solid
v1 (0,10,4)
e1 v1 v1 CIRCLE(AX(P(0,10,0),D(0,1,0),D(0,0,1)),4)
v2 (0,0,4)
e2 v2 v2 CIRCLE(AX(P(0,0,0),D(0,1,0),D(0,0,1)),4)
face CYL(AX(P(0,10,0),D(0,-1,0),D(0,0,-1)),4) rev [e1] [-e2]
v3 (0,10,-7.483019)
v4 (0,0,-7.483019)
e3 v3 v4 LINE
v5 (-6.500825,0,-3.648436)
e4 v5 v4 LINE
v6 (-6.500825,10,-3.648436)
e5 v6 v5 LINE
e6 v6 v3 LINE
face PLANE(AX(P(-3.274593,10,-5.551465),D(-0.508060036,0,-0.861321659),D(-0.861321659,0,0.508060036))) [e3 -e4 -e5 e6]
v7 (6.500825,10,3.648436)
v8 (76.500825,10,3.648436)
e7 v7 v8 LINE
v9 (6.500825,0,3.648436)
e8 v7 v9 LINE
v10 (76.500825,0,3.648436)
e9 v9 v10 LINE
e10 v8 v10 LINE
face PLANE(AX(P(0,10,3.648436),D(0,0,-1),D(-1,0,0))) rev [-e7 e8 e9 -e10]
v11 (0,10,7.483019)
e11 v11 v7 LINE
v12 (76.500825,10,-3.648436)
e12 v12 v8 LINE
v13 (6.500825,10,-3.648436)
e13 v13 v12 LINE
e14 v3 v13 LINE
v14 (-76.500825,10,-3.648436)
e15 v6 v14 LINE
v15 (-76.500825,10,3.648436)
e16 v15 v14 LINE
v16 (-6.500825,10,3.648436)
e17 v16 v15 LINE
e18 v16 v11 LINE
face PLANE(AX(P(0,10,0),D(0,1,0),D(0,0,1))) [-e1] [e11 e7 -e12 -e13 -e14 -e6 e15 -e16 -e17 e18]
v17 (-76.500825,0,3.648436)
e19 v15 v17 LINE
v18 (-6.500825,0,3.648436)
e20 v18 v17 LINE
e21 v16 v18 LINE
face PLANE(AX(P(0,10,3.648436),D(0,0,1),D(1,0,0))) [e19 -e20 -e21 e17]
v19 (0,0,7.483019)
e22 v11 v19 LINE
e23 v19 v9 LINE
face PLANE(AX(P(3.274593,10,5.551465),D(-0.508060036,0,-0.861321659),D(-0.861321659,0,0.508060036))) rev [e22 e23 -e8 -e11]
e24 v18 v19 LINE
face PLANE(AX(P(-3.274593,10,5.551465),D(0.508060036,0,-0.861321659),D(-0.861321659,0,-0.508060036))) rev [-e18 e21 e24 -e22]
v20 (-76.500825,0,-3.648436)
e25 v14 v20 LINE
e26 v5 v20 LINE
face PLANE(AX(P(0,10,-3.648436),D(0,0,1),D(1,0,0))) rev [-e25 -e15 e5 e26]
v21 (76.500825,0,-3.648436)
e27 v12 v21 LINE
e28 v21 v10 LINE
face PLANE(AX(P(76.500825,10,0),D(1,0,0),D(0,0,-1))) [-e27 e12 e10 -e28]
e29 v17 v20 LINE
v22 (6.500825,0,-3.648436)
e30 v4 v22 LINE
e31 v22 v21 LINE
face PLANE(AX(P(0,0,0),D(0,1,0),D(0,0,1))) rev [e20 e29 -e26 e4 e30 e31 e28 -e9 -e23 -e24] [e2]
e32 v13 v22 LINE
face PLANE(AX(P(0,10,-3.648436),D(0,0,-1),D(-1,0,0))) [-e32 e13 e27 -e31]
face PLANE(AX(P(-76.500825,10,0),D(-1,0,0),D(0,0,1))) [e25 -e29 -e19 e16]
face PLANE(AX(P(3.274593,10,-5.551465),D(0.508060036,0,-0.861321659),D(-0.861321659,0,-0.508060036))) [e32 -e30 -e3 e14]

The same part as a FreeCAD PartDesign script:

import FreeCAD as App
import Part
import Sketcher

V = App.Vector


def add_polygon(sketch, points):
    """Adds a closed chain of lines whose ends are joined by coincident constraints."""
    first, n = sketch.GeometryCount, len(points)
    for a, b in zip(points, points[1:] + points[:1]):
        sketch.addGeometry(Part.LineSegment(App.Vector(*a, 0), App.Vector(*b, 0)), False)
    for i in range(n):
        sketch.addConstraint(Sketcher.Constraint("Coincident", first + i, 2, first + (i + 1) % n, 1))

doc = App.newDocument("Part")
body = doc.addObject("PartDesign::Body", "Body")

sketch1 = body.newObject("Sketcher::SketchObject", "Sketch")
sketch1.AttachmentSupport = (doc.getObject("XZ_Plane"), [""])
sketch1.MapMode = "FlatFace"
add_polygon(sketch1, [(6.500825, -3.648436), (0, -7.483019), (-6.500825, -3.648436), (-76.500825, -3.648436), (-76.500825, 3.648436), (-6.500825, 3.648436), (0, 7.483019), (6.500825, 3.648436), (76.500825, 3.648436), (76.500825, -3.648436)])
sketch1.addGeometry(Part.Circle(V(0, 0, 0), V(0, 0, 1), 4), False)
sketch1.addConstraint([
    Sketcher.Constraint("Horizontal", 2),
    Sketcher.Constraint("Vertical", 3),
    Sketcher.Constraint("Horizontal", 4),
    Sketcher.Constraint("Horizontal", 7),
    Sketcher.Constraint("Vertical", 8),
    Sketcher.Constraint("Horizontal", 9),
    Sketcher.Constraint("Coincident", 10, 3, -1, 1),
    Sketcher.Constraint("Symmetric", 0, 2, 5, 2, -1, 1),
    Sketcher.Constraint("Symmetric", 1, 2, 6, 2, -1, 1),
    Sketcher.Constraint("Symmetric", 3, 2, 8, 2, -1, 1),
    Sketcher.Constraint("Symmetric", 4, 2, 6, 2, -2),
    Sketcher.Constraint("PointOnObject", 0, 2, -2),
    Sketcher.Constraint("Parallel", 0, 5),
    Sketcher.Constraint("Diameter", 10, 8.0),
    Sketcher.Constraint("DistanceX", 2, 2, 2, 1, 70.0),
    Sketcher.Constraint("Distance", 0, 7.5475),
    Sketcher.Constraint("DistanceY", 3, 1, 3, 2, 7.296873),
    Sketcher.Constraint("DistanceY", 0, 2, -1, 1, 7.483019),
])
pad1 = body.newObject("PartDesign::Pad", "Pad")
pad1.Profile = sketch1
pad1.Length = 10
pad1.Reversed = True

doc.recompute()
